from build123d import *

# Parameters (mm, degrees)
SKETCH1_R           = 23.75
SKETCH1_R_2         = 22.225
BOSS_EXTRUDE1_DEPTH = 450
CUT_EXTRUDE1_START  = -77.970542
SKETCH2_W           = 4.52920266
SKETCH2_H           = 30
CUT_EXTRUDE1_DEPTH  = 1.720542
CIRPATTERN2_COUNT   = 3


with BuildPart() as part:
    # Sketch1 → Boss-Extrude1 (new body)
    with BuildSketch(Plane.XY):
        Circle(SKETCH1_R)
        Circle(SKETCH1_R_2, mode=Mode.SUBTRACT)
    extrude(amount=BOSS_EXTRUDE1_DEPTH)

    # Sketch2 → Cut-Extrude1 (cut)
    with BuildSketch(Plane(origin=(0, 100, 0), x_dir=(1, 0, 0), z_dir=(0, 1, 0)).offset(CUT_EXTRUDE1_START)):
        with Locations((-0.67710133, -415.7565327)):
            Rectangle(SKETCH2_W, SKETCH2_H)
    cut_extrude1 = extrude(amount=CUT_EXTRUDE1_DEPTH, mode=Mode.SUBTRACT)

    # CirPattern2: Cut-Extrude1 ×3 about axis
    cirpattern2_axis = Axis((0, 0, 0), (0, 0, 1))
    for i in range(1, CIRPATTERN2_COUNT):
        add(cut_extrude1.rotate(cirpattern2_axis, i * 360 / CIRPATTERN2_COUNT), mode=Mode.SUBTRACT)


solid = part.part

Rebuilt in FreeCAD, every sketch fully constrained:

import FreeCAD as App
import Part
import Sketcher
from FreeCAD import Vector
Q = App.Units.Quantity


def add_polygon(sketch, points):
    """Adds a closed chain of lines whose ends are joined by coincident constraints."""
    first, n = sketch.GeometryCount, len(points)
    for a, b in zip(points, points[1:] + points[:1]):
        sketch.addGeometry(Part.LineSegment(App.Vector(*a, 0), App.Vector(*b, 0)), False)
    for i in range(n):
        sketch.addConstraint(Sketcher.Constraint("Coincident", first + i, 2, first + (i + 1) % n, 1))

doc = App.newDocument("Part")
params = doc.addObject("Spreadsheet::Sheet", "Params")
for row, (alias, value) in enumerate([
    ("sketch1_diameter", "47.5 mm"),
    ("sketch1_diameter2", "44.45 mm"),
    ("pad1_length", "450 mm"),
    ("sketch2_height", "30 mm"),
    ("pocket1_length", "1.720542 mm"),
], start=1):
    params.set(f"A{row}", alias)
    params.set(f"B{row}", "=" + value)
    params.setAlias(f"B{row}", alias)

body = doc.addObject("PartDesign::Body", "Body")

# Sketch on XY plane
sketch1 = doc.addObject("Sketcher::SketchObject", "Sketch")
body.addObject(sketch1)
sketch1.AttachmentSupport = (doc.XY_Plane, [""])
sketch1.MapMode = "FlatFace"
sketch1.addGeometry([
    Part.Circle(Vector(0, 0, 0), Vector(0, 0, 1), 24),
    Part.Circle(Vector(0, 0, 0), Vector(0, 0, 1), 22),
], False)
sketch1.addConstraint([
    Sketcher.Constraint("Coincident", 0, 3, -1, 1),
    Sketcher.Constraint("Coincident", 1, 3, -1, 1),
    Sketcher.Constraint("Diameter", 0, Q("47.5 mm")),
    Sketcher.Constraint("Diameter", 1, Q("44.45 mm")),
])
sketch1.setExpression("Constraints[2]", "Params.sketch1_diameter")
sketch1.setExpression("Constraints[3]", "Params.sketch1_diameter2")
pad1 = doc.addObject("PartDesign::Pad", "Pad")
body.addObject(pad1)
pad1.Profile = sketch1
pad1.setExpression("Length", "Params.pad1_length")

# Sketch on XZ plane
sketch2 = doc.addObject("Sketcher::SketchObject", "Sketch001")
body.addObject(sketch2)
sketch2.AttachmentSupport = (doc.XZ_Plane, [""])
sketch2.MapMode = "FlatFace"
sketch2.AttachmentOffset = App.Placement(Vector(0, 0, -22.029458), App.Rotation())
add_polygon(sketch2, [(-2.9, 400.8), (-2.9, 430.8), (1.6, 430.8), (1.6, 400.8)])  # lines 0-3
sketch2.addConstraint([
    Sketcher.Constraint("Vertical", 0),
    Sketcher.Constraint("Horizontal", 1),
    Sketcher.Constraint("Vertical", 2),
    Sketcher.Constraint("Horizontal", 3),
    Sketcher.Constraint("DistanceY", 0, 1, 0, 2, Q("30 mm")),
    Sketcher.Constraint("DistanceX", -1, 1, 1, 2, Q("1.5875 mm")),
    Sketcher.Constraint("DistanceX", 1, 1, 1, 2, Q("4.529203 mm")),
    Sketcher.Constraint("DistanceY", -1, 1, 0, 2, Q("430.756533 mm")),
])
sketch2.setExpression("Constraints[8]", "Params.sketch2_height")
pocket1 = doc.addObject("PartDesign::Pocket", "Pocket")
body.addObject(pocket1)
pocket1.Profile = sketch2
pocket1.setExpression("Length", "Params.pocket1_length")
doc.recompute()

polarpattern = doc.addObject("PartDesign::PolarPattern", "PolarPattern")
body.addObject(polarpattern)
polarpattern.Originals = [pocket1]
polarpattern.Axis = (doc.Z_Axis, [""])
polarpattern.Angle = 360
polarpattern.Occurrences = 3
body.Tip = polarpattern

doc.recompute()
